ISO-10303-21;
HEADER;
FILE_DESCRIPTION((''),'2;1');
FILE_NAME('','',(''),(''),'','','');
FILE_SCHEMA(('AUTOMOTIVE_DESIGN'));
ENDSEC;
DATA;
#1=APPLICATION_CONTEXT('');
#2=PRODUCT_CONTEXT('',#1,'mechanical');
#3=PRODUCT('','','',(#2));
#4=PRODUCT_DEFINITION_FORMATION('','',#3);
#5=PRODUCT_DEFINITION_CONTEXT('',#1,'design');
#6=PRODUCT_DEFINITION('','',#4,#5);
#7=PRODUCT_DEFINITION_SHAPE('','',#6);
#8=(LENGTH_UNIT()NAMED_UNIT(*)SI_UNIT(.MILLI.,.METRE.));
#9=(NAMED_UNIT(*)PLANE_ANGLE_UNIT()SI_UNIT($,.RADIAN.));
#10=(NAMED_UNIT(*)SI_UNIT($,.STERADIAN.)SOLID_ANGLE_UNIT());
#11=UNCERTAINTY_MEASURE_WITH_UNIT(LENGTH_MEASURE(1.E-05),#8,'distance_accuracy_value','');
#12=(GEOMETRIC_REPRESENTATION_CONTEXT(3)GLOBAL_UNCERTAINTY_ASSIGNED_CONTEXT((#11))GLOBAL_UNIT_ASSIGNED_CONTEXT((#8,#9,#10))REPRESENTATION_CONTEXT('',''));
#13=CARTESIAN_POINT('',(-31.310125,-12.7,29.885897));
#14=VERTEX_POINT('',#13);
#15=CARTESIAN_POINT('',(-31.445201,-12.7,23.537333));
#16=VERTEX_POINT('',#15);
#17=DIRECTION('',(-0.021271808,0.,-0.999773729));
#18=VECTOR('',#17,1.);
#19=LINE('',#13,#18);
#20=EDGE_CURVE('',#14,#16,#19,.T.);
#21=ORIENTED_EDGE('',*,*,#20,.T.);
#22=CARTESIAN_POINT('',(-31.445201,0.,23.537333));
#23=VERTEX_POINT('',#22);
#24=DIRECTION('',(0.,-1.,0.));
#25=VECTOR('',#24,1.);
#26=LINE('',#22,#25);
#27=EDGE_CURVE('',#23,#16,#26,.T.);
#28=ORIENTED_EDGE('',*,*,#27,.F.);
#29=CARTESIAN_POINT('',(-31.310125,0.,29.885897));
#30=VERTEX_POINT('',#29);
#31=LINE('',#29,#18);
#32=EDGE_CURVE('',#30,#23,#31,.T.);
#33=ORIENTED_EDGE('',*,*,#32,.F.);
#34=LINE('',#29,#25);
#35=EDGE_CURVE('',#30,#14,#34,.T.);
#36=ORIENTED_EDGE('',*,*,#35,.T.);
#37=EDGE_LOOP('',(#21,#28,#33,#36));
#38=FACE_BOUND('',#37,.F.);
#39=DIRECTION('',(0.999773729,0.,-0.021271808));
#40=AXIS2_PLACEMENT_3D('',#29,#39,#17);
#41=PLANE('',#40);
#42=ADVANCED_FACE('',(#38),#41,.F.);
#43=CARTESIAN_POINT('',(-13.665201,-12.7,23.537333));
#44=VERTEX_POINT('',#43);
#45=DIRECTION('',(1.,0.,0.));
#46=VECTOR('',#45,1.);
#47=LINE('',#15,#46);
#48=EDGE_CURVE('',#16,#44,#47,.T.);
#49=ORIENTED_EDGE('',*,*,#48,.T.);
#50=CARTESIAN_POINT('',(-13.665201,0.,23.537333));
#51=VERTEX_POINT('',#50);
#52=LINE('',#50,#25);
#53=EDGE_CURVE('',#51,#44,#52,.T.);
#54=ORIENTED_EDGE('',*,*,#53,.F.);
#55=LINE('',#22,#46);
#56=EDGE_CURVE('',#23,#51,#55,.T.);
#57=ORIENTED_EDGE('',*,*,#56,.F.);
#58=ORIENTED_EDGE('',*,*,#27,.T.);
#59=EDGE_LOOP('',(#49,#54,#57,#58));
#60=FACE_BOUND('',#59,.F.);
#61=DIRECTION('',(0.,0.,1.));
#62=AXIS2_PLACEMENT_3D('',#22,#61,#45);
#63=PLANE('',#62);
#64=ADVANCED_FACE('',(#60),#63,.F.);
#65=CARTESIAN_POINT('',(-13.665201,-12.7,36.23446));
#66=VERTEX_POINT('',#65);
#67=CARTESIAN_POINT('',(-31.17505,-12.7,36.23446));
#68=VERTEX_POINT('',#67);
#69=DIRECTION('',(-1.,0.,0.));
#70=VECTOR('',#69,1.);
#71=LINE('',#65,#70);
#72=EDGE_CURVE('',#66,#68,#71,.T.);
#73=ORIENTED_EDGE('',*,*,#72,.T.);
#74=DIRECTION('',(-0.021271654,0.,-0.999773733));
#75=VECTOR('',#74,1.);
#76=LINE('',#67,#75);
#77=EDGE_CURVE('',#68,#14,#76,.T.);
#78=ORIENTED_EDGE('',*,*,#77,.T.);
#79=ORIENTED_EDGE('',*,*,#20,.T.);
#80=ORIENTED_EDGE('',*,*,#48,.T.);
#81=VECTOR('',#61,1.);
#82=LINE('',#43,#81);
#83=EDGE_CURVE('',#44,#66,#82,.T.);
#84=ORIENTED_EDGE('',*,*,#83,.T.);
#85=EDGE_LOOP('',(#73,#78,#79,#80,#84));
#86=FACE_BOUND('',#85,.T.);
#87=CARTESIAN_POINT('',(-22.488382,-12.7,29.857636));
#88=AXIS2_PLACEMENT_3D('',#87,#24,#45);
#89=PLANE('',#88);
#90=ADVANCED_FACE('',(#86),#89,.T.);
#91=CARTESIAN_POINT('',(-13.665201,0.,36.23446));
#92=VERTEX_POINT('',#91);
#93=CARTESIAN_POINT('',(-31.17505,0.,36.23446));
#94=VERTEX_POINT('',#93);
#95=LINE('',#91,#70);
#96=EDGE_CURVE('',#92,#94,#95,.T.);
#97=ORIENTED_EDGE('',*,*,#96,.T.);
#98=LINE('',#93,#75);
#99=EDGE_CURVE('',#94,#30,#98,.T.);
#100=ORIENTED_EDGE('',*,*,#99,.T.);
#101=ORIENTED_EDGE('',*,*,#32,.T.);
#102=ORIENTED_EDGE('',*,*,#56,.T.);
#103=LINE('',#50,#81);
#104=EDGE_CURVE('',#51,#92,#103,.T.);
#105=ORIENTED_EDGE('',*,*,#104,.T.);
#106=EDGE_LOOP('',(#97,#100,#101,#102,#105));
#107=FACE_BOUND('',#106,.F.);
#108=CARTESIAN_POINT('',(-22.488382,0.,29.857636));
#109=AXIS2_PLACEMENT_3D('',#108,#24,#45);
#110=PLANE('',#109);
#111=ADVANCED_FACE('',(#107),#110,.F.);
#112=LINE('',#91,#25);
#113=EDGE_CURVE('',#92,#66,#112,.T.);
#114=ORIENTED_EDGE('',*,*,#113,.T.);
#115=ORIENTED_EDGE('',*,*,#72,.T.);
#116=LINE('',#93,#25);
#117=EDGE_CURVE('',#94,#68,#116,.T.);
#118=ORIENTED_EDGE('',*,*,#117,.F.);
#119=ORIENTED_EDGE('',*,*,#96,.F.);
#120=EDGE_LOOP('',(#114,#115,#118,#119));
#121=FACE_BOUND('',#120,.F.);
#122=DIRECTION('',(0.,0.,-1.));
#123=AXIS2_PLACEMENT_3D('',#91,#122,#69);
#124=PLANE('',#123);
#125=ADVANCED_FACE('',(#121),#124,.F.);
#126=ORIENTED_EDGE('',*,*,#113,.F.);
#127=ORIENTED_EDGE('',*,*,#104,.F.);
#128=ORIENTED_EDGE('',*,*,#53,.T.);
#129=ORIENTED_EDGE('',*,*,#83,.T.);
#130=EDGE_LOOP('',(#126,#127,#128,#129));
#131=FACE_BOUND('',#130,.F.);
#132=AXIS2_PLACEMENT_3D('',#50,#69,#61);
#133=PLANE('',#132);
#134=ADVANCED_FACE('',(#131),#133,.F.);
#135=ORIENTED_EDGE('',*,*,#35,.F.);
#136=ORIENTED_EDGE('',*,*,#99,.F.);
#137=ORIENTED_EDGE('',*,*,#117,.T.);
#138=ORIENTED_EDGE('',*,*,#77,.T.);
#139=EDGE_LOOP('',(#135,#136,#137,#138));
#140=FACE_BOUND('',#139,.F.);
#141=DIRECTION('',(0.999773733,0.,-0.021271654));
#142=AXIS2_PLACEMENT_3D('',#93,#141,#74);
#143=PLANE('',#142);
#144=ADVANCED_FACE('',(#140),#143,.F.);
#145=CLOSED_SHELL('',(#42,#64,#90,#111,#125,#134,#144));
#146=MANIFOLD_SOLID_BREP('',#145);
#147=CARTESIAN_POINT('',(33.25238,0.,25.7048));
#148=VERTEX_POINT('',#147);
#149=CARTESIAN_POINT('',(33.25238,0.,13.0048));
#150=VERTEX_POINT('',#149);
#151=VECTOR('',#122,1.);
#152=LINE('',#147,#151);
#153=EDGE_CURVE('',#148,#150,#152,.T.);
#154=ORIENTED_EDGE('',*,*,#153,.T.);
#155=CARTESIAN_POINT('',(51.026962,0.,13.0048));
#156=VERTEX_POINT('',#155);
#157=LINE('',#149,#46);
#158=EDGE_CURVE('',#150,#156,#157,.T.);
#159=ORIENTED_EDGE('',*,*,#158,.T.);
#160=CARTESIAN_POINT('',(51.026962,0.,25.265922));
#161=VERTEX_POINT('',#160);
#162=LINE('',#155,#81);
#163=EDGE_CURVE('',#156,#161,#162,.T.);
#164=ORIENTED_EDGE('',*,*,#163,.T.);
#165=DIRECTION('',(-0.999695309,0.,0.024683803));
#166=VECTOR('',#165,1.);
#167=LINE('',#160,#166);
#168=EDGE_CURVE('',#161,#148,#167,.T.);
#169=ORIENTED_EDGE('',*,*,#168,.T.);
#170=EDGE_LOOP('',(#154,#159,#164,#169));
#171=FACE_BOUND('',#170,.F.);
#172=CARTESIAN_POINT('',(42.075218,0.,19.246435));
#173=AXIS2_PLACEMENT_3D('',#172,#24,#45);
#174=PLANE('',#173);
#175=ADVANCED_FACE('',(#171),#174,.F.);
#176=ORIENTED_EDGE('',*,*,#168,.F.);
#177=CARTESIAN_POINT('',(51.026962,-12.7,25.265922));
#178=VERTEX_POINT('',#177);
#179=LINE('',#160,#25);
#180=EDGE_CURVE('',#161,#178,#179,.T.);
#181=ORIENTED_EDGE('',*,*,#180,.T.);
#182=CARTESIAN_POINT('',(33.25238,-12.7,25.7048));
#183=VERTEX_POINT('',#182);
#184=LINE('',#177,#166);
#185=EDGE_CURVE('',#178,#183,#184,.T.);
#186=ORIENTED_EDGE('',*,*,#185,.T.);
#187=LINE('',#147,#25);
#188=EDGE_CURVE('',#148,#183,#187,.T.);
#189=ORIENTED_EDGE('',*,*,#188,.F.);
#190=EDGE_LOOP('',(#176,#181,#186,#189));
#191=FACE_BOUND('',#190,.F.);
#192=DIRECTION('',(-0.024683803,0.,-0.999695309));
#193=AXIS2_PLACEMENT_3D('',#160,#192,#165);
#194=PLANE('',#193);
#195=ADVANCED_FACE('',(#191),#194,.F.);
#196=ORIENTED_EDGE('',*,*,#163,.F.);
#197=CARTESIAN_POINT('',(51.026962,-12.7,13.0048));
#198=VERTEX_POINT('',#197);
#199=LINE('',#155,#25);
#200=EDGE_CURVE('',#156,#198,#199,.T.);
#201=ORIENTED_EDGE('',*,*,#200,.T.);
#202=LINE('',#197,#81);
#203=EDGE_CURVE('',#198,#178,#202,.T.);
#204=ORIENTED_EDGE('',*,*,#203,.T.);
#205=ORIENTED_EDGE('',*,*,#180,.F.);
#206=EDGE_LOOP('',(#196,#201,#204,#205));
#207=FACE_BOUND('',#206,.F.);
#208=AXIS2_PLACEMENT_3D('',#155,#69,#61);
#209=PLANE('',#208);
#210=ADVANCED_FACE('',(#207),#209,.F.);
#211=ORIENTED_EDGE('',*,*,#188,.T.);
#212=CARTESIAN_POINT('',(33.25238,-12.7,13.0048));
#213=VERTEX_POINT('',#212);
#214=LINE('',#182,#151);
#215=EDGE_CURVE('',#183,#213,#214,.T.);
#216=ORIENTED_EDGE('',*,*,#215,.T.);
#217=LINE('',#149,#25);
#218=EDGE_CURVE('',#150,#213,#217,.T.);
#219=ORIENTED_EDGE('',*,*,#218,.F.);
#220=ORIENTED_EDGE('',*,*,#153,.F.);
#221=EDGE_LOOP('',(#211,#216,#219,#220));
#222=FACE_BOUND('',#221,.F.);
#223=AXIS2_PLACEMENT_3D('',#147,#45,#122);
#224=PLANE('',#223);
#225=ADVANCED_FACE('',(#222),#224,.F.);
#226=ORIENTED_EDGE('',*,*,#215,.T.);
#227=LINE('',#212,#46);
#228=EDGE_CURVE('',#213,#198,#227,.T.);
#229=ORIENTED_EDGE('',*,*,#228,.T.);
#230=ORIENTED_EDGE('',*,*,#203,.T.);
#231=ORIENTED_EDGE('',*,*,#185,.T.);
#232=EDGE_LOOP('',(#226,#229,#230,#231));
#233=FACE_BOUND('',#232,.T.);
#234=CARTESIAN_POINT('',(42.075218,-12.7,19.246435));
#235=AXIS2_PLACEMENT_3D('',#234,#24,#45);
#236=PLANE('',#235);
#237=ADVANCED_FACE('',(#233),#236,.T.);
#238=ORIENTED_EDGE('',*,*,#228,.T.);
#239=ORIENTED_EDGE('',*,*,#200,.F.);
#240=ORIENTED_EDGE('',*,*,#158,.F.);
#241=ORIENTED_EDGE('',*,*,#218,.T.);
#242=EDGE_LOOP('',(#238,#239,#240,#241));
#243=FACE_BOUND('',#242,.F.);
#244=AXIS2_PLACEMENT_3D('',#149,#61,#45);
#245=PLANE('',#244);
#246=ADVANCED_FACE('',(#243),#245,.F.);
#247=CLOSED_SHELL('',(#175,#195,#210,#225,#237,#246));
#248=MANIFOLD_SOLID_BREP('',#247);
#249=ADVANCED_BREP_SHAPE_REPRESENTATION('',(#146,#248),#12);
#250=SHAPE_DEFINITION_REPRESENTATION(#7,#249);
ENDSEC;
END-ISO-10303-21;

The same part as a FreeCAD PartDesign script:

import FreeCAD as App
import Part
import Sketcher
from FreeCAD import Vector
Q = App.Units.Quantity


def add_polygon(sketch, points):
    """Adds a closed chain of lines whose ends are joined by coincident constraints."""
    first, n = sketch.GeometryCount, len(points)
    for a, b in zip(points, points[1:] + points[:1]):
        sketch.addGeometry(Part.LineSegment(App.Vector(*a, 0), App.Vector(*b, 0)), False)
    for i in range(n):
        sketch.addConstraint(Sketcher.Constraint("Coincident", first + i, 2, first + (i + 1) % n, 1))

doc = App.newDocument("Part")
params = doc.addObject("Spreadsheet::Sheet", "Params")
for row, (alias, value) in enumerate([
    ("sketch1_width", "0.7 in"),
    ("sketch1_height", "0.5 in"),
    ("sketch1_length", "0.7 in"),
    ("sketch1_length2", "0.25 in"),
    ("pad1_length", "0.5 in"),
], start=1):
    params.set(f"A{row}", alias)
    params.set(f"B{row}", "=" + value)
    params.setAlias(f"B{row}", alias)

body = doc.addObject("PartDesign::Body", "Body")
body.AllowCompound = True

# Sketch on XZ plane
sketch1 = body.newObject("Sketcher::SketchObject", "Sketch")
sketch1.AttachmentSupport = (doc.getObject("XZ_Plane"), [""])
sketch1.MapMode = "FlatFace"
add_polygon(sketch1, [(-31.310125, 29.885897), (-31.445201, 23.537333), (-13.665201, 23.537333), (-13.665201, 36.23446), (-31.17505, 36.23446)])  # lines 0-4
add_polygon(sketch1, [(51.026962, 25.265922), (33.25238, 25.7048), (33.25238, 13.0048), (51.026962, 13.0048)])  # lines 5-8
sketch1.addConstraint([
    Sketcher.Constraint("Horizontal", 1),
    Sketcher.Constraint("Vertical", 2),
    Sketcher.Constraint("Horizontal", 3),
    Sketcher.Constraint("Vertical", 6),
    Sketcher.Constraint("Horizontal", 7),
    Sketcher.Constraint("Vertical", 8),
    Sketcher.Constraint("Parallel", 0, 4),
    Sketcher.Constraint("Equal", 0, 4),
    Sketcher.Constraint("DistanceX", 1, 1, 1, 2, Q("0.7 in")),
    Sketcher.Constraint("DistanceY", 6, 2, 6, 1, Q("0.5 in")),
    Sketcher.Constraint("Distance", 5, Q("0.7 in")),
    Sketcher.Constraint("Distance", 0, Q("0.25 in")),
    Sketcher.Constraint("DistanceX", 0, 2, -1, 1, Q("1.238 in")),
    Sketcher.Constraint("DistanceY", -1, 1, 5, 2, Q("1.012 in")),
    Sketcher.Constraint("DistanceX", 3, 2, 3, 1, Q("17.509849 mm")),
    Sketcher.Constraint("DistanceX", 7, 1, 7, 2, Q("17.774582 mm")),
    Sketcher.Constraint("DistanceY", -1, 1, 2, 2, Q("36.23446 mm")),
    Sketcher.Constraint("DistanceX", -1, 1, 5, 2, Q("33.25238 mm")),
])
sketch1.setExpression("Constraints[17]", "Params.sketch1_width")
sketch1.setExpression("Constraints[18]", "Params.sketch1_height")
sketch1.setExpression("Constraints[19]", "Params.sketch1_length")
sketch1.setExpression("Constraints[20]", "Params.sketch1_length2")
pad1 = body.newObject("PartDesign::Pad", "Pad")
pad1.Profile = sketch1
pad1.setExpression("Length", "Params.pad1_length")

doc.recompute()
